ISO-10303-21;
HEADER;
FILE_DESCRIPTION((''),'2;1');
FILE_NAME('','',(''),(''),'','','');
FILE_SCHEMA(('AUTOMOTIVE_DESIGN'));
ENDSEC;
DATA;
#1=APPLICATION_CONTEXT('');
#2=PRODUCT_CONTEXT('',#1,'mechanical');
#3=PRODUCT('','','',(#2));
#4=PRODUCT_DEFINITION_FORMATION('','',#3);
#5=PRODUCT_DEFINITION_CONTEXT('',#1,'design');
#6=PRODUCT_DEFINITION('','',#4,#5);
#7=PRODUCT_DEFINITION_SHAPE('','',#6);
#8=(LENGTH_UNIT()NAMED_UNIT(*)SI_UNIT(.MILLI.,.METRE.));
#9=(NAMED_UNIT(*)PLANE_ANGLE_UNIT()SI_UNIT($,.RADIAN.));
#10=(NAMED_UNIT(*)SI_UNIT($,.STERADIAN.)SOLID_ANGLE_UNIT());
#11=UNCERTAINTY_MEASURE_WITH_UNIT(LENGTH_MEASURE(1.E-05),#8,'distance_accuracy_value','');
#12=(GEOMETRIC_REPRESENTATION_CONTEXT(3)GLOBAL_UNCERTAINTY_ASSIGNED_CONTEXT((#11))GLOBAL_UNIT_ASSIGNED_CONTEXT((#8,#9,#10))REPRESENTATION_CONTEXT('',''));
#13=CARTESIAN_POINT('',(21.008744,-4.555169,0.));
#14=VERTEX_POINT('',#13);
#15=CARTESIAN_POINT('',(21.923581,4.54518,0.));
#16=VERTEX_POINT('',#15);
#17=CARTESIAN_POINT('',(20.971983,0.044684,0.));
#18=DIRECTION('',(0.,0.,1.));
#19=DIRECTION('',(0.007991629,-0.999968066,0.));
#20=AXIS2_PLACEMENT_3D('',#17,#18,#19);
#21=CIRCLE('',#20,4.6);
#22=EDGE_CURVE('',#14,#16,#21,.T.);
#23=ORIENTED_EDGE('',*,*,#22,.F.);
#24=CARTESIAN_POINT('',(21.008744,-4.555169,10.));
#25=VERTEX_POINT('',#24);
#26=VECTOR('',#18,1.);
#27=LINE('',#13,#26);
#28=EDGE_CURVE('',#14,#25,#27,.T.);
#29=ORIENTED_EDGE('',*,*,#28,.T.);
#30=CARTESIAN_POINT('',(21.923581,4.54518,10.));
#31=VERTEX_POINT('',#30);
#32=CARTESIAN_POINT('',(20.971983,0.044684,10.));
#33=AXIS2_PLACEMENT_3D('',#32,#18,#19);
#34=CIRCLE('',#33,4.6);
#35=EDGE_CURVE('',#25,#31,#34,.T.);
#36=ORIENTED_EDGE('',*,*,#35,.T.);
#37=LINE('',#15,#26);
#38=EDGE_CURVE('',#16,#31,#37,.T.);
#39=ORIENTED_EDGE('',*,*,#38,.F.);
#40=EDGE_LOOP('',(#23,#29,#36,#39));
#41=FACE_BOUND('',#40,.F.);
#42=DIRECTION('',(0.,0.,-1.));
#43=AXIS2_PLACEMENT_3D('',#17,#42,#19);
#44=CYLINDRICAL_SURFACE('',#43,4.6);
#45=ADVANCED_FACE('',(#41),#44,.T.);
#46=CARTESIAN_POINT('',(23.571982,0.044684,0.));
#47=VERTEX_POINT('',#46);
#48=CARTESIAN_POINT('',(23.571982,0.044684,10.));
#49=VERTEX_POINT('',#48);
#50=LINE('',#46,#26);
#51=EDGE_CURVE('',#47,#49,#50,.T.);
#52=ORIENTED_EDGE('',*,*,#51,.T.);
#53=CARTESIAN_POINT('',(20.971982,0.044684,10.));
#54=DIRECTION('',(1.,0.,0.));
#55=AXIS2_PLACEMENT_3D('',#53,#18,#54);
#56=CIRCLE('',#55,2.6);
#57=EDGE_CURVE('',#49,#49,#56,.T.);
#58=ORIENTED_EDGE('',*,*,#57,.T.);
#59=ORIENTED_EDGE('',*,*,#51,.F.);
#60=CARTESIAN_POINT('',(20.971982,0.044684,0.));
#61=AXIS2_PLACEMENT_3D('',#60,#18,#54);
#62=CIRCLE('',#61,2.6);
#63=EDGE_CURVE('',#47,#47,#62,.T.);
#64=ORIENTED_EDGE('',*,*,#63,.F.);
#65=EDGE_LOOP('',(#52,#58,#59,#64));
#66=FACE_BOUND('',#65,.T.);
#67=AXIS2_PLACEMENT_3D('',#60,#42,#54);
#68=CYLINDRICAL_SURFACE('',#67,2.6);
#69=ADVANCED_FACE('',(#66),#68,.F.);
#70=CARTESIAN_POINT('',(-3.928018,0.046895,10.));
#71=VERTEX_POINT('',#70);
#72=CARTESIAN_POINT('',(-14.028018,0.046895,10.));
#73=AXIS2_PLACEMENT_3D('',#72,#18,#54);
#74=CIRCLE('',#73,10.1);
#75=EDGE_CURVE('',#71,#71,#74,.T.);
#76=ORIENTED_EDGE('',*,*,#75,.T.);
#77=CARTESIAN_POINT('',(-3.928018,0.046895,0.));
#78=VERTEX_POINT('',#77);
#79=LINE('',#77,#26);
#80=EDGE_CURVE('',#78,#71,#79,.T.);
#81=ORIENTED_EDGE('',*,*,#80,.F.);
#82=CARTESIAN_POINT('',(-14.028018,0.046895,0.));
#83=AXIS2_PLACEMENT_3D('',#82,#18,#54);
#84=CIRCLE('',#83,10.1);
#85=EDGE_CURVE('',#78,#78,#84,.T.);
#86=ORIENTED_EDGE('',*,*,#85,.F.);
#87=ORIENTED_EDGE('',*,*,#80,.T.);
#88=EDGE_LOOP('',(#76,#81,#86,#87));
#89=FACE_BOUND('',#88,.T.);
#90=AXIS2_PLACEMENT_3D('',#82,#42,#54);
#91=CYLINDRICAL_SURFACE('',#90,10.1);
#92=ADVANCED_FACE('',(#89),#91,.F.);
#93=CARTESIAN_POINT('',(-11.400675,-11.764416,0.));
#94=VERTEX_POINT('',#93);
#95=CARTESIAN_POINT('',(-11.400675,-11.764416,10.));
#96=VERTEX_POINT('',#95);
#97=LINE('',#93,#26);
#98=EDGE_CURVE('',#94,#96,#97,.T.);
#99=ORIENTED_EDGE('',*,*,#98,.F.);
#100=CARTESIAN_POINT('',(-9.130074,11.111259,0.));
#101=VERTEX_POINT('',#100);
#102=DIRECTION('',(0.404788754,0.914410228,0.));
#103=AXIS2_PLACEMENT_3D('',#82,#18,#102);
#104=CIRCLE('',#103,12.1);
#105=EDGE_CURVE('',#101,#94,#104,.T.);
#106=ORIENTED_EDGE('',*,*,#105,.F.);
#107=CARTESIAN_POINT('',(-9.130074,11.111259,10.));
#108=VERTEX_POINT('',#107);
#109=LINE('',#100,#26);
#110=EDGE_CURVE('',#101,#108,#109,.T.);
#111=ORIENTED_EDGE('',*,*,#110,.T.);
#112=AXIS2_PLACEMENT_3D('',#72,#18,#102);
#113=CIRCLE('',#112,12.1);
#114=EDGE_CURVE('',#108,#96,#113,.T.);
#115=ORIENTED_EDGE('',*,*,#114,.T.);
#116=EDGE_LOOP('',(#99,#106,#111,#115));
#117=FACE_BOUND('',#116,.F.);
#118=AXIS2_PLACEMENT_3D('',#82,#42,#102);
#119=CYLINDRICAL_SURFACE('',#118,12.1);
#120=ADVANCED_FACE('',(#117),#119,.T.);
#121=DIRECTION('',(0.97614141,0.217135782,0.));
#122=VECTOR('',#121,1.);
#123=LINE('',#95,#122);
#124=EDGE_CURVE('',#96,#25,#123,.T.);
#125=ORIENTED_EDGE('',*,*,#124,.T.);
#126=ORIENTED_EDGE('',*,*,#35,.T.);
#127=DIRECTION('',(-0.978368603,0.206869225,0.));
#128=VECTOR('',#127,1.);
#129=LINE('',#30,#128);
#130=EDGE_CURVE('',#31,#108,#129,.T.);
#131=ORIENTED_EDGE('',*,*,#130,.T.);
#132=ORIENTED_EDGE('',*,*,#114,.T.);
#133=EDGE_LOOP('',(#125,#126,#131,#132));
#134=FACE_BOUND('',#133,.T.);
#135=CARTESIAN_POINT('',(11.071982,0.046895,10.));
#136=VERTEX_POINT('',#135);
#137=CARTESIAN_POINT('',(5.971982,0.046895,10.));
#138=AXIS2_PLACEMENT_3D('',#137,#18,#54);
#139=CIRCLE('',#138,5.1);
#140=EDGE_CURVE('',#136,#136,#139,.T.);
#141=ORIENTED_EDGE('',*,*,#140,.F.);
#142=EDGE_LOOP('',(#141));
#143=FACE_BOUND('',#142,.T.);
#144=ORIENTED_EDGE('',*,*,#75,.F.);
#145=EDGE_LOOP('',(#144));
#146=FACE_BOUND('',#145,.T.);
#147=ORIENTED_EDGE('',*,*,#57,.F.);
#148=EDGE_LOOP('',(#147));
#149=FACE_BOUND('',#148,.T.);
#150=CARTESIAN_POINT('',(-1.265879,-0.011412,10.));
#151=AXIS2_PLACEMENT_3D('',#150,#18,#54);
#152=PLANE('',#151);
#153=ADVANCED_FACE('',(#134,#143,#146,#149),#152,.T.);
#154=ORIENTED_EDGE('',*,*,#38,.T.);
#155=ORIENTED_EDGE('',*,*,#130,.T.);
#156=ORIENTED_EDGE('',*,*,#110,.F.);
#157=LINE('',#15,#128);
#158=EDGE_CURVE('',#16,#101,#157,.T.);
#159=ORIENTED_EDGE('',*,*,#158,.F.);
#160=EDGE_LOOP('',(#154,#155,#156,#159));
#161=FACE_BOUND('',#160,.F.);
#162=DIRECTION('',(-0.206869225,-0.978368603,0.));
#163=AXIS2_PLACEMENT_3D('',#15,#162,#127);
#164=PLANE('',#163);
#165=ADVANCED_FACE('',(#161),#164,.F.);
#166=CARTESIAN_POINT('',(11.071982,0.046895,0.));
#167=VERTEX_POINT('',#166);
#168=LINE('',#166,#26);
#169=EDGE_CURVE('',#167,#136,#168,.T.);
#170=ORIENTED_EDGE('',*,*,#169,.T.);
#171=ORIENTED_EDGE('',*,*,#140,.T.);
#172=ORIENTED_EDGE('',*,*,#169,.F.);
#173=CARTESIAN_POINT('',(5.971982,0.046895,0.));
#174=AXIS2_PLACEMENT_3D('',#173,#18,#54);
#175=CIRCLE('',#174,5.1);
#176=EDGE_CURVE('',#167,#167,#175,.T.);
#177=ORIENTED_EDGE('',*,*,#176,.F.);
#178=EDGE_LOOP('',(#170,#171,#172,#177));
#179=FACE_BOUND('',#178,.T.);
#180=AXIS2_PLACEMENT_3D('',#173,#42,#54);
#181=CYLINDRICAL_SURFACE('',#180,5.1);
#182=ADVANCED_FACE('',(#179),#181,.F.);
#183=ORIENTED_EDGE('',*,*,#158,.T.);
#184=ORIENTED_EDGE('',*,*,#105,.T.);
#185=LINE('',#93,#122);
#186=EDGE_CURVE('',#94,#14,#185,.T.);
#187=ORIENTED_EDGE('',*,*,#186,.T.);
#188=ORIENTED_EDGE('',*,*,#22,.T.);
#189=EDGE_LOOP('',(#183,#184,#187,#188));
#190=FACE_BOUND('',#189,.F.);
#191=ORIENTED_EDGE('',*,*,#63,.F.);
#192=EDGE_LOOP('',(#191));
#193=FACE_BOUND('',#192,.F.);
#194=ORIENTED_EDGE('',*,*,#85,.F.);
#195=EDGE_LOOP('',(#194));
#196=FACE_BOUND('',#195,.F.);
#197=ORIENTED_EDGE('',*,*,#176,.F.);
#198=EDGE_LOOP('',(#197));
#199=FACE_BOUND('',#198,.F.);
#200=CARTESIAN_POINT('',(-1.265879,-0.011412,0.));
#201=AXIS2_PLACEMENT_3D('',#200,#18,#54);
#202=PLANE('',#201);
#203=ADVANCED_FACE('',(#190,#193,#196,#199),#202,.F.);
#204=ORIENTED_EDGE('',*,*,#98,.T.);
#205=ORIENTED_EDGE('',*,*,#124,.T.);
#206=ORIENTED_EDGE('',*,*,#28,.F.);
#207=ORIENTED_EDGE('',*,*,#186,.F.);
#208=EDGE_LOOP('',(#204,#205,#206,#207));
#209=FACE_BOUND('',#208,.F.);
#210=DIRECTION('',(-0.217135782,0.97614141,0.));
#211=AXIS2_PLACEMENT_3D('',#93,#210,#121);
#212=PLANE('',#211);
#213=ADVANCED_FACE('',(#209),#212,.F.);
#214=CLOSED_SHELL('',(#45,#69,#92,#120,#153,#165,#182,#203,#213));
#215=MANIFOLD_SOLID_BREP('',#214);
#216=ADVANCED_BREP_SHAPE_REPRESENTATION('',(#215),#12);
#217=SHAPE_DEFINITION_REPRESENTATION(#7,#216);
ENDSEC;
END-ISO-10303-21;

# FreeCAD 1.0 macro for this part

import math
import FreeCAD as App
import Part
import Sketcher
Q = App.Units.Quantity

doc = App.newDocument("Part")
params = doc.addObject("Spreadsheet::Sheet", "Params")
for row, (alias, value) in enumerate([
    ("sketch1_diameter", "5.2 mm"),
    ("sketch1_diameter2", "20.2 mm"),
    ("sketch1_diameter3", "10.2 mm"),
    ("sketch1_radius", "4.6 mm"),
    ("sketch1_radius2", "12.1 mm"),
    ("pad1_length", "10 mm"),
], start=1):
    params.set(f"A{row}", alias)
    params.set(f"B{row}", "=" + value)
    params.setAlias(f"B{row}", alias)

body = doc.addObject("PartDesign::Body", "Body")

# Sketch on XY plane
sketch1 = body.newObject("Sketcher::SketchObject", "Sketch")
sketch1.AttachmentSupport = (doc.getObject("XY_Plane"), [""])
sketch1.MapMode = "FlatFace"
sketch1.addGeometry(Part.LineSegment(App.Vector(-11.400675, -11.764416, 0), App.Vector(21.008744, -4.555169, 0)), False)
sketch1.addGeometry(Part.ArcOfCircle(Part.Circle(App.Vector(20.971983, 0.044684, 0), App.Vector(0, 0, 1), 4.6), math.radians(-89.542109), math.radians(78.061056)), False)
sketch1.addGeometry(Part.LineSegment(App.Vector(21.923581, 4.54518, 0), App.Vector(-9.130074, 11.111259, 0)), False)
sketch1.addGeometry(Part.ArcOfCircle(Part.Circle(App.Vector(-14.028018, 0.046895, 0), App.Vector(0, 0, 1), 12.1), math.radians(66.12211), math.radians(282.540859)), False)
sketch1.addGeometry(Part.Circle(App.Vector(20.971982, 0.044684, 0), App.Vector(0, 0, 1), 2.6), False)
sketch1.addGeometry(Part.Circle(App.Vector(-14.028018, 0.046895, 0), App.Vector(0, 0, 1), 10.1), False)
sketch1.addGeometry(Part.Circle(App.Vector(5.971982, 0.046895, 0), App.Vector(0, 0, 1), 5.1), False)
sketch1.addConstraint(Sketcher.Constraint("Coincident", 0, 2, 1, 1))
sketch1.addConstraint(Sketcher.Constraint("Tangent", 1, 2, 2, 1))
sketch1.addConstraint(Sketcher.Constraint("Coincident", 2, 2, 3, 1))
sketch1.addConstraint(Sketcher.Constraint("Tangent", 3, 2, 0, 1))
sketch1.addConstraint(Sketcher.Constraint("Coincident", 4, 3, 1, 3))
sketch1.addConstraint(Sketcher.Constraint("Coincident", 5, 3, 3, 3))
sketch1.addConstraint(Sketcher.Constraint("Horizontal", 5, 3, 6, 3))
sketch1.addConstraint(Sketcher.Constraint("Diameter", 4, Q("5.2 mm")))
sketch1.addConstraint(Sketcher.Constraint("Diameter", 5, Q("20.2 mm")))
sketch1.addConstraint(Sketcher.Constraint("Diameter", 6, Q("10.2 mm")))
sketch1.addConstraint(Sketcher.Constraint("Radius", 1, Q("4.6 mm")))
sketch1.addConstraint(Sketcher.Constraint("Radius", 3, Q("12.1 mm")))
sketch1.addConstraint(Sketcher.Constraint("DistanceX", 3, 3, 1, 3, Q("35 mm")))
sketch1.addConstraint(Sketcher.Constraint("DistanceX", 6, 3, 4, 3, Q("15 mm")))
sketch1.addConstraint(Sketcher.Constraint("DistanceX", 1, 3, 1, 2, Q("0.951598 mm")))
sketch1.addConstraint(Sketcher.Constraint("DistanceX", 3, 2, 2, 2, Q("2.270601 mm")))
sketch1.addConstraint(Sketcher.Constraint("Distance", 0, Q("33.201561 mm")))
sketch1.addConstraint(Sketcher.Constraint("DistanceX", -1, 1, 6, 3, Q("5.971982 mm")))
sketch1.addConstraint(Sketcher.Constraint("DistanceY", 0, 2, -1, 1, Q("4.555169 mm")))
sketch1.setExpression("Constraints[7]", "Params.sketch1_diameter")
sketch1.setExpression("Constraints[8]", "Params.sketch1_diameter2")
sketch1.setExpression("Constraints[9]", "Params.sketch1_diameter3")
sketch1.setExpression("Constraints[10]", "Params.sketch1_radius")
sketch1.setExpression("Constraints[11]", "Params.sketch1_radius2")
pad1 = body.newObject("PartDesign::Pad", "Pad")
pad1.Profile = sketch1
pad1.setExpression("Length", "Params.pad1_length")

doc.recompute()
